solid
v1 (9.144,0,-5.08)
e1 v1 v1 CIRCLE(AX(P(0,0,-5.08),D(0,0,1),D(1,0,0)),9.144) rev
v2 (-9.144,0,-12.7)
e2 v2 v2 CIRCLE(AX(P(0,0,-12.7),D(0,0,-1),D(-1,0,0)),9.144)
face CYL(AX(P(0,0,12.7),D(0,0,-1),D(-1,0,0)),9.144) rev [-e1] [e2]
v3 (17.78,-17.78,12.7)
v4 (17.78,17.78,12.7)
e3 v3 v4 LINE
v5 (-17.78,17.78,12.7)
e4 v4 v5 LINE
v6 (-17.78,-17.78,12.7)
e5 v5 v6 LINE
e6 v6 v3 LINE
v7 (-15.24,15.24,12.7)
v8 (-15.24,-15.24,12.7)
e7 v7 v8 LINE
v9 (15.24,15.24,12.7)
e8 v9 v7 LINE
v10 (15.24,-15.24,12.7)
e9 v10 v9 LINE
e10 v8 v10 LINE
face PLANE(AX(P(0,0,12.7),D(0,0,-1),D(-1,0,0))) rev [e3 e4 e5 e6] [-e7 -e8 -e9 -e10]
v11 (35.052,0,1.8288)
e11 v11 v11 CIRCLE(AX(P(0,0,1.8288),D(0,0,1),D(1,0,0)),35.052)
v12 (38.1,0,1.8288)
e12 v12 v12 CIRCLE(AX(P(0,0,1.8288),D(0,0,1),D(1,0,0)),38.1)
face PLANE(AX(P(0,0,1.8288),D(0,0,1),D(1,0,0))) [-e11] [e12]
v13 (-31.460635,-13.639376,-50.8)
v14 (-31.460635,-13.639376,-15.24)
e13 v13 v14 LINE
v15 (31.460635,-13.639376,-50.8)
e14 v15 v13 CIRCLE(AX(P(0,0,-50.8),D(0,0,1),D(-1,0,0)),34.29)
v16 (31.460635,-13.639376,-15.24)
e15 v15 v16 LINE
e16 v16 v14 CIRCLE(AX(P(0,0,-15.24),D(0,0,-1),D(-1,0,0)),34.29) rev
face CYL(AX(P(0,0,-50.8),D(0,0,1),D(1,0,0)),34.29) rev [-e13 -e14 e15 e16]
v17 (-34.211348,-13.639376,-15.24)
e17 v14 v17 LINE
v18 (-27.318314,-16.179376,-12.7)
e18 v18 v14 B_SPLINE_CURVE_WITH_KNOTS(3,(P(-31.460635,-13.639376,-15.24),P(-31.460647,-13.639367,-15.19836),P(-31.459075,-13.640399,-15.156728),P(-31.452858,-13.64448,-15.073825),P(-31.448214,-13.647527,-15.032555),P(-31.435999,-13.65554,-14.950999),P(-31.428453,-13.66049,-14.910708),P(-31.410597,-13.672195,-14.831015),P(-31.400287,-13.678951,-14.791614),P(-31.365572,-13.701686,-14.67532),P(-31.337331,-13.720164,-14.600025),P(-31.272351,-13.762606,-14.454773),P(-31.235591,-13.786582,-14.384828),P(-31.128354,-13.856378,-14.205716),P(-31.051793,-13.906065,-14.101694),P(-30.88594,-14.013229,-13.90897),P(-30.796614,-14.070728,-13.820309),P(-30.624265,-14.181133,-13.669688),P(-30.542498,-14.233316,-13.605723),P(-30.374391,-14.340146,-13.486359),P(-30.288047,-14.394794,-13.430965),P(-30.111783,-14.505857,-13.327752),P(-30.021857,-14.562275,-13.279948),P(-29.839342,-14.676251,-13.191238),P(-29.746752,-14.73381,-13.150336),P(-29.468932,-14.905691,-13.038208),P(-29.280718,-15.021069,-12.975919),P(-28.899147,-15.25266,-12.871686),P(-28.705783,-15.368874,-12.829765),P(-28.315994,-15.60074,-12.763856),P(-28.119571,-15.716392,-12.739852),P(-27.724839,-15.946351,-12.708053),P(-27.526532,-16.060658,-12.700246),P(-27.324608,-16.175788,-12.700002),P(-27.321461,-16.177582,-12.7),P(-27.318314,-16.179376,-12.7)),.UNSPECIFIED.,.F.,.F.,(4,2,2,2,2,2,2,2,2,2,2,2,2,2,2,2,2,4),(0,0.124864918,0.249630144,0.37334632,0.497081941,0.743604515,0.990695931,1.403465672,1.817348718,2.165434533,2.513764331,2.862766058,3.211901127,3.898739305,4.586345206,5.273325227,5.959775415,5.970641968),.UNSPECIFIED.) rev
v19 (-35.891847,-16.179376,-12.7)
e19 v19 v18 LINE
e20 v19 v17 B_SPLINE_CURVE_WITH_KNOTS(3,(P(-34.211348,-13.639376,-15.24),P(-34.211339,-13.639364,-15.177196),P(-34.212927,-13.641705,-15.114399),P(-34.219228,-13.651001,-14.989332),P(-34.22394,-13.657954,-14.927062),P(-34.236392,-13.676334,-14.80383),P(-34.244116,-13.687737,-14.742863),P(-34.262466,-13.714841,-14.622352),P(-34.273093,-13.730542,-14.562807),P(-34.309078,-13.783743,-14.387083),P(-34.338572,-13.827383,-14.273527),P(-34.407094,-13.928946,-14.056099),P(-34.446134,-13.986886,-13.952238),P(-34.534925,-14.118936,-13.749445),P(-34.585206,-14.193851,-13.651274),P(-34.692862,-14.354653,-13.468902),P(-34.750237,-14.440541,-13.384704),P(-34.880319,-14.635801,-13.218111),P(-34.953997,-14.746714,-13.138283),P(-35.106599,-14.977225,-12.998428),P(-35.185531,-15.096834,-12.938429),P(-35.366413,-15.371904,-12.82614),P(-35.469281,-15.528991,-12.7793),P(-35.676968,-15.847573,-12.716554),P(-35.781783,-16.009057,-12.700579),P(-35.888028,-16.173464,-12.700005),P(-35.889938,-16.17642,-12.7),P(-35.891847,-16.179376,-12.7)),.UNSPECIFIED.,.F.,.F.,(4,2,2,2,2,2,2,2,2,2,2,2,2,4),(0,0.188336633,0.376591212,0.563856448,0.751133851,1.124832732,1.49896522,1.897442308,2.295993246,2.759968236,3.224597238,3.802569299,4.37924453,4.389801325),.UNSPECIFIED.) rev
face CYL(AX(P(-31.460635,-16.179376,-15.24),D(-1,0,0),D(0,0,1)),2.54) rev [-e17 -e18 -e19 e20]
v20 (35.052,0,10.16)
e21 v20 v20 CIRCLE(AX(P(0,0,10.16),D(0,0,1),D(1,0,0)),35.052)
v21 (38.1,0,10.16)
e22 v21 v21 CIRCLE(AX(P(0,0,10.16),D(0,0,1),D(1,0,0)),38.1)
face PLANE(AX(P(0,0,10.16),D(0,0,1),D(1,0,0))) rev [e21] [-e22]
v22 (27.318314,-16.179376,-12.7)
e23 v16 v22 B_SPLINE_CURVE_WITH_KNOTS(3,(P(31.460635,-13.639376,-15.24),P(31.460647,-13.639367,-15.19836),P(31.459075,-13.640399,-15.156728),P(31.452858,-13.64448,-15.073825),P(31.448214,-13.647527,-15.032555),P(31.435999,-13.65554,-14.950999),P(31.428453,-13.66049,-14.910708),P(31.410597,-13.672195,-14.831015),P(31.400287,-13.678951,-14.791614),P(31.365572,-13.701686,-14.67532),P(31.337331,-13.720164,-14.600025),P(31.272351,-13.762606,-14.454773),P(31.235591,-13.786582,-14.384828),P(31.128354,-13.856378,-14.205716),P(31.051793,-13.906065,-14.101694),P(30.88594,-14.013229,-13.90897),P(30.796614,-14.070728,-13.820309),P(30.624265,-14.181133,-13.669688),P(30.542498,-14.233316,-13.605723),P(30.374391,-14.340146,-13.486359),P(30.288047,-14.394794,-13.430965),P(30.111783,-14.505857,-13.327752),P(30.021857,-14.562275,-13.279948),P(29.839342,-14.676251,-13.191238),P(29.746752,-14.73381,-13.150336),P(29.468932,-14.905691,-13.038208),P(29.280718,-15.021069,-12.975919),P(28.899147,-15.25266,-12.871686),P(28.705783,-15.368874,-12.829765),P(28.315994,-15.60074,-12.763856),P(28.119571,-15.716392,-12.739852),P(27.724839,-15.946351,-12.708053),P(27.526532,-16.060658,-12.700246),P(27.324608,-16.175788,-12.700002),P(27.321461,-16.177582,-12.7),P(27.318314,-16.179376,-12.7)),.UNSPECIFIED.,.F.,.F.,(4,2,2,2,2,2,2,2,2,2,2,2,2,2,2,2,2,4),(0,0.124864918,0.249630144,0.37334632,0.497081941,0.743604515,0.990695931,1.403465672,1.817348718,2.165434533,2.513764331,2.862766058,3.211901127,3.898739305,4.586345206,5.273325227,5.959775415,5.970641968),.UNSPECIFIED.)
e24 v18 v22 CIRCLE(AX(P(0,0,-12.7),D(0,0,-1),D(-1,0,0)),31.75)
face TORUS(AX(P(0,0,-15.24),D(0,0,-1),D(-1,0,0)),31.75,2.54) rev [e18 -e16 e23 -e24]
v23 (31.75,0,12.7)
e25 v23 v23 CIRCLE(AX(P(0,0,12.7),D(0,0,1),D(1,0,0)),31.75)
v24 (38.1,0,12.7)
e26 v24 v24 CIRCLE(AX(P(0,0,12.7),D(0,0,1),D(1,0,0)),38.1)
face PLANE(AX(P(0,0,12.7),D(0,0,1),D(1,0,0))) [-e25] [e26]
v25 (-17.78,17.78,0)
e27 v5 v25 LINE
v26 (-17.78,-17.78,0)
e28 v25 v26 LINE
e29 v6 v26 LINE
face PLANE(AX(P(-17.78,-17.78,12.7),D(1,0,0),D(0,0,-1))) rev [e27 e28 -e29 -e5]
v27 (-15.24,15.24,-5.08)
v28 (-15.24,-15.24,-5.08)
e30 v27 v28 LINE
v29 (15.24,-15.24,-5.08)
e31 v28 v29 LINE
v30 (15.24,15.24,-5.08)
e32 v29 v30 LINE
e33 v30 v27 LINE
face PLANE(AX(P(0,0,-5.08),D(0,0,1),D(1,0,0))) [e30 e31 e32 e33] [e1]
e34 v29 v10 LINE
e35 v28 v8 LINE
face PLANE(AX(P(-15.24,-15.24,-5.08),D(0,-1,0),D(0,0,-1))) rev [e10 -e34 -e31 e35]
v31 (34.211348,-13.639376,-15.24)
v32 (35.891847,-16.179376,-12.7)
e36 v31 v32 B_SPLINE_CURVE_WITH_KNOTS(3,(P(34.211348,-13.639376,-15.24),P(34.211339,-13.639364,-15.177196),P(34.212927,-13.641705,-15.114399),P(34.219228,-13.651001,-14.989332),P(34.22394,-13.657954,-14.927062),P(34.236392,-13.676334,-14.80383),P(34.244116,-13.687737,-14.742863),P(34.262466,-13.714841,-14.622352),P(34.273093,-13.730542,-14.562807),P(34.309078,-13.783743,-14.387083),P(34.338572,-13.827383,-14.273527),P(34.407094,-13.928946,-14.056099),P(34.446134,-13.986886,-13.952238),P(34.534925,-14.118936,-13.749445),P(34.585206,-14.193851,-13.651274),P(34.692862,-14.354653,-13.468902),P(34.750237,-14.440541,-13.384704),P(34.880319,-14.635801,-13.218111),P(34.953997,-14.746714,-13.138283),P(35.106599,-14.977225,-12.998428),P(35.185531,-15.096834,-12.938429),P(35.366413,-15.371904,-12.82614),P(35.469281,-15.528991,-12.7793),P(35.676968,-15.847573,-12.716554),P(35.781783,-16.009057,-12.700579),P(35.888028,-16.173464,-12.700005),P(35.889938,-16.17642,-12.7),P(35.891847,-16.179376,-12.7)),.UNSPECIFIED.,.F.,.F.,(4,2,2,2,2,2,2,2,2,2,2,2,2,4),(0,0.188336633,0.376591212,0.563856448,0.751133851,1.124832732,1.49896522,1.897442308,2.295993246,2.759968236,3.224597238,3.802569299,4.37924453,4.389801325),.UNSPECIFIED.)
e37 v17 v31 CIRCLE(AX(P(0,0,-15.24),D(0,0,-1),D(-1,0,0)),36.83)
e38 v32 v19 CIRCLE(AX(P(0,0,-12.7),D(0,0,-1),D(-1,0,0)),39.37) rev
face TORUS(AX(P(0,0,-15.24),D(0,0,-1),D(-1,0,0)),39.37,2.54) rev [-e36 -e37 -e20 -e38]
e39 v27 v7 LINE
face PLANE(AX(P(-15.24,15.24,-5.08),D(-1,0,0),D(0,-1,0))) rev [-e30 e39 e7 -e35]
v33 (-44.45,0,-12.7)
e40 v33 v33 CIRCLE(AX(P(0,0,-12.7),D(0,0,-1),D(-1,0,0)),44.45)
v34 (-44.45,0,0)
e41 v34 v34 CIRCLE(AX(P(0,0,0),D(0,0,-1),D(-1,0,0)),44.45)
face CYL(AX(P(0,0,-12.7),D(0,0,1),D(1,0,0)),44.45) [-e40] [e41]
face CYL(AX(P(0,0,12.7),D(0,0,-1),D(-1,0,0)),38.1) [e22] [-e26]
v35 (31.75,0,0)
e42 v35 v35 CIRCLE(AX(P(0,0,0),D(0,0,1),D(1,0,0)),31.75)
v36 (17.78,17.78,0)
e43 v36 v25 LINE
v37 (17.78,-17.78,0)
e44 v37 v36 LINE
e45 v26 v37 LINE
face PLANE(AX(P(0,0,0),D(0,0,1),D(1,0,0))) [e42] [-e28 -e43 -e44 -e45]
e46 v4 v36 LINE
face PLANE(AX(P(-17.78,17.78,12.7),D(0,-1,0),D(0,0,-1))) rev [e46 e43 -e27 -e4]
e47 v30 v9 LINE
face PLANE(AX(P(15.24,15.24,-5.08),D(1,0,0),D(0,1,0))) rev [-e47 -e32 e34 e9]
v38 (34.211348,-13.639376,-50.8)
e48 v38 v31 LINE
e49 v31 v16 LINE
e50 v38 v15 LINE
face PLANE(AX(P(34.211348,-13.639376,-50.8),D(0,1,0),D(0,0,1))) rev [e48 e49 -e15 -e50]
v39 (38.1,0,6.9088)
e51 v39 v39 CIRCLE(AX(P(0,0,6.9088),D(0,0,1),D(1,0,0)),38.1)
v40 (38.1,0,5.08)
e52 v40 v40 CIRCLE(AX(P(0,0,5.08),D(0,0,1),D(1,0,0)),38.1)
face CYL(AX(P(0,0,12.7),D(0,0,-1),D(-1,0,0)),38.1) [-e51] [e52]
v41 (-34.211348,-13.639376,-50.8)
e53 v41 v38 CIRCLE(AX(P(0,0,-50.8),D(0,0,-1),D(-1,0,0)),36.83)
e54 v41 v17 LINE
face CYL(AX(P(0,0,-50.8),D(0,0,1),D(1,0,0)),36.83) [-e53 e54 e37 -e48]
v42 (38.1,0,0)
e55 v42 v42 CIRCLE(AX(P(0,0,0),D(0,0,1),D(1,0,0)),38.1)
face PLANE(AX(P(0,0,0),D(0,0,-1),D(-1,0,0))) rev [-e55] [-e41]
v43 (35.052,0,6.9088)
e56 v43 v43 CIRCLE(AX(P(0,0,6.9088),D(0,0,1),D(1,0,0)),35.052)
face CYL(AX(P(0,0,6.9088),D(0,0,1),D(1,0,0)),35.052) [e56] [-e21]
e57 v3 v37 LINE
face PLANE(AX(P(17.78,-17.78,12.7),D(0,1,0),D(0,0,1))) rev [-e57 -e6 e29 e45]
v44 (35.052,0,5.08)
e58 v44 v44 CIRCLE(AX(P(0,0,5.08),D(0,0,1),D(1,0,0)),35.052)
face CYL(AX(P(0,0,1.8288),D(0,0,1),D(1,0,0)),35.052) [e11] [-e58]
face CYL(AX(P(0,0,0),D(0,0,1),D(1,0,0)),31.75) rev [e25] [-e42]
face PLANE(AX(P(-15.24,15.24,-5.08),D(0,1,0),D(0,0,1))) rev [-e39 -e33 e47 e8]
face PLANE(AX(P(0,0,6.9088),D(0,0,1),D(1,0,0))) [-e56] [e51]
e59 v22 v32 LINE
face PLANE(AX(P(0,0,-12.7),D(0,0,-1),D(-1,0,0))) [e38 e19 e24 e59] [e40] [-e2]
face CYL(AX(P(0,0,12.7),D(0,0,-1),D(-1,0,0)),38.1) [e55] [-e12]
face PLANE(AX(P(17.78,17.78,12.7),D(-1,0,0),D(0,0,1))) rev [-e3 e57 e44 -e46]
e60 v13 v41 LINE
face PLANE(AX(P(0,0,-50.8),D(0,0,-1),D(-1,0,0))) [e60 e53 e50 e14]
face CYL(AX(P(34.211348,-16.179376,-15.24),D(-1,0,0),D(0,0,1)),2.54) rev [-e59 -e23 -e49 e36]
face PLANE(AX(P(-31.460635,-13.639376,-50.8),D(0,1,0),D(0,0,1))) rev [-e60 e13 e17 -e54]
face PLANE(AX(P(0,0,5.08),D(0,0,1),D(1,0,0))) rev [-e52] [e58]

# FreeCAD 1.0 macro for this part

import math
import FreeCAD as App
import Part
import Sketcher

V = App.Vector
Q = App.Units.Quantity


def edges_at(feature, points):
    """Names of the edges that pass closest to the given points."""
    edges = feature.Shape.Edges
    near = lambda p: min(range(len(edges)), key=lambda i: edges[i].distToShape(Part.Vertex(*p))[0])
    return sorted({f"Edge{near(p) + 1}" for p in points})


def add_polygon(sketch, points):
    """Adds a closed chain of lines whose ends are joined by coincident constraints."""
    first, n = sketch.GeometryCount, len(points)
    for a, b in zip(points, points[1:] + points[:1]):
        sketch.addGeometry(Part.LineSegment(App.Vector(*a, 0), App.Vector(*b, 0)), False)
    for i in range(n):
        sketch.addConstraint(Sketcher.Constraint("Coincident", first + i, 2, first + (i + 1) % n, 1))

doc = App.newDocument("Part")
body = doc.addObject("PartDesign::Body", "Body")

sketch1 = body.newObject("Sketcher::SketchObject", "Sketch")
sketch1.AttachmentSupport = (doc.getObject("XY_Plane"), [""])
sketch1.MapMode = "FlatFace"
sketch1.addGeometry(Part.Circle(V(0, 0, 0), V(0, 0, 1), 38), False)
sketch1.addConstraint([
    Sketcher.Constraint("Coincident", 0, 3, -1, 1),
    Sketcher.Constraint("Diameter", 0, Q("3 in")),
])
pad1 = body.newObject("PartDesign::Pad", "Pad")
pad1.Profile = sketch1
pad1.Length = Q("0.5 in")

sketch2 = body.newObject("Sketcher::SketchObject", "Sketch001")
sketch2.AttachmentSupport = (doc.getObject("XY_Plane"), [""])
sketch2.MapMode = "FlatFace"
sketch2.addGeometry(Part.Circle(V(0, 0, 0), V(0, 0, 1), 44), False)
sketch2.addConstraint([
    Sketcher.Constraint("Coincident", 0, 3, -1, 1),
    Sketcher.Constraint("Diameter", 0, Q("3.5 in")),
])
pad2 = body.newObject("PartDesign::Pad", "Pad001")
pad2.Profile = sketch2
pad2.Length = Q("0.5 in")
pad2.Reversed = True

sketch3 = body.newObject("Sketcher::SketchObject", "Sketch002")
sketch3.AttachmentSupport = (doc.getObject("XY_Plane"), [""])
sketch3.MapMode = "FlatFace"
sketch3.AttachmentOffset = App.Placement(V(0, 0, -0.5 * 25.4), App.Rotation())
sketch3.addGeometry(Part.Circle(V(0, 0, 0), V(0, 0, 1), 9), False)
sketch3.addConstraint([
    Sketcher.Constraint("Coincident", 0, 3, -1, 1),
    Sketcher.Constraint("Diameter", 0, Q("0.72 in")),
])
pocket1 = body.newObject("PartDesign::Pocket", "Pocket")
pocket1.Profile = sketch3
pocket1.Type = "ThroughAll"
pocket1.Reversed = True

sketch4 = body.newObject("Sketcher::SketchObject", "Sketch003")
sketch4.AttachmentSupport = (doc.getObject("XY_Plane"), [""])
sketch4.MapMode = "FlatFace"
sketch4.AttachmentOffset = App.Placement(V(0, 0, 0.5 * 25.4), App.Rotation())
add_polygon(sketch4, [(-15, 15), (-15, -15), (15, -15), (15, 15)])
sketch4.addConstraint([
    Sketcher.Constraint("Vertical", 0),
    Sketcher.Constraint("Horizontal", 1),
    Sketcher.Constraint("Vertical", 2),
    Sketcher.Constraint("Horizontal", 3),
    Sketcher.Constraint("Symmetric", 0, 2, 2, 2, -1, 1),
    Sketcher.Constraint("Equal", 3, 0),
    Sketcher.Constraint("DistanceX", 1, 1, 1, 2, Q("1.2 in")),
])
pocket2 = body.newObject("PartDesign::Pocket", "Pocket001")
pocket2.Profile = sketch4
pocket2.Length = Q("0.7 in")

sketch5 = body.newObject("Sketcher::SketchObject", "Sketch004")
sketch5.AttachmentSupport = (doc.getObject("XY_Plane"), [""])
sketch5.MapMode = "FlatFace"
sketch5.AttachmentOffset = App.Placement(V(0, 0, 0.5 * 25.4), App.Rotation())
sketch5.addGeometry(Part.Circle(V(0, 0, 0), V(0, 0, 1), 32), False)
sketch5.addConstraint([
    Sketcher.Constraint("Coincident", 0, 3, -1, 1),
    Sketcher.Constraint("Diameter", 0, Q("2.5 in")),
])
pocket3 = body.newObject("PartDesign::Pocket", "Pocket002")
pocket3.Profile = sketch5
pocket3.Length = Q("0.5 in")

sketch6 = body.newObject("Sketcher::SketchObject", "Sketch005")
sketch6.AttachmentSupport = (doc.getObject("XY_Plane"), [""])
sketch6.MapMode = "FlatFace"
sketch6.AttachmentOffset = App.Placement(V(0, 0, -0.5 * 25.4), App.Rotation())
sketch6.addGeometry([
    Part.LineSegment(V(34.2, -13.6, 0), V(31.5, -13.6, 0)),
    Part.ArcOfCircle(Part.Circle(V(0, 0, 0), V(0, 0, 1), 34.3), math.radians(-23), math.radians(203)),
    Part.LineSegment(V(-31.5, -13.6, 0), V(-34.2, -13.6, 0)),
    Part.ArcOfCircle(Part.Circle(V(0, 0, 0), V(0, 0, 1), 36.8), math.radians(-22), math.radians(202)),
], False)
sketch6.addConstraint([
    Sketcher.Constraint("Coincident", 0, 2, 1, 1),
    Sketcher.Constraint("Coincident", 1, 2, 2, 1),
    Sketcher.Constraint("Coincident", 2, 2, 3, 2),
    Sketcher.Constraint("Coincident", 3, 1, 0, 1),
    Sketcher.Constraint("Horizontal", 0),
    Sketcher.Constraint("Horizontal", 2),
    Sketcher.Constraint("Coincident", 1, 3, -1, 1),
    Sketcher.Constraint("Coincident", 3, 3, -1, 1),
    Sketcher.Constraint("Horizontal", 0, 2, 1, 2),
    Sketcher.Constraint("Radius", 1, Q("1.35 in")),
    Sketcher.Constraint("Radius", 3, Q("1.45 in")),
    Sketcher.Constraint("DistanceX", 0, 2, 0, 1, 2.750713),
])
pad3 = body.newObject("PartDesign::Pad", "Pad002")
pad3.Profile = sketch6
pad3.Length = Q("1.5 in")
pad3.Reversed = True

sketch7 = body.newObject("Sketcher::SketchObject", "Sketch006")
sketch7.AttachmentSupport = (doc.getObject("XY_Plane"), [""])
sketch7.MapMode = "FlatFace"
sketch7.AttachmentOffset = App.Placement(V(0, 0, 0.4 * 25.4), App.Rotation())
sketch7.addGeometry([
    Part.Circle(V(0, 0, 0), V(0, 0, 1), 38),
    Part.Circle(V(0, 0, 0), V(0, 0, 1), 35),
], False)
sketch7.addConstraint([
    Sketcher.Constraint("Coincident", 0, 3, -1, 1),
    Sketcher.Constraint("Coincident", 1, 3, -1, 1),
    Sketcher.Constraint("Diameter", 0, Q("3 in")),
    Sketcher.Constraint("Diameter", 1, Q("2.76 in")),
])
pocket4 = body.newObject("PartDesign::Pocket", "Pocket003")
pocket4.Profile = sketch7
pocket4.Length = Q("0.128 in")

sketch8 = body.newObject("Sketcher::SketchObject", "Sketch007")
sketch8.AttachmentSupport = (doc.getObject("XY_Plane"), [""])
sketch8.MapMode = "FlatFace"
sketch8.AttachmentOffset = App.Placement(V(0, 0, 0.2 * 25.4), App.Rotation())
sketch8.addGeometry([
    Part.Circle(V(0, 0, 0), V(0, 0, 1), 38),
    Part.Circle(V(0, 0, 0), V(0, 0, 1), 35),
], False)
sketch8.addConstraint([
    Sketcher.Constraint("Coincident", 0, 3, -1, 1),
    Sketcher.Constraint("Coincident", 1, 3, -1, 1),
    Sketcher.Constraint("Diameter", 0, Q("3 in")),
    Sketcher.Constraint("Diameter", 1, Q("2.76 in")),
])
pocket5 = body.newObject("PartDesign::Pocket", "Pocket004")
pocket5.Profile = sketch8
pocket5.Length = Q("0.128 in")
doc.recompute()

fillet = body.newObject("PartDesign::Fillet", "Fillet")
fillet.Base = (pocket5, edges_at(pocket5, [
    (0, 36.83, -12.7),
    (32.836, -13.639, -12.7),
    (0, 34.29, -12.7),
    (-32.836, -13.639, -12.7),
]))
fillet.Radius = Q("0.1 in")

sketch9 = body.newObject("Sketcher::SketchObject", "Sketch008")
sketch9.AttachmentSupport = (doc.getObject("XY_Plane"), [""])
sketch9.MapMode = "FlatFace"
add_polygon(sketch9, [(-18, 18), (-18, -18), (18, -18), (18, 18)])
add_polygon(sketch9, [(15, -15), (-15, -15), (-15, 15), (15, 15)])
sketch9.addConstraint([
    Sketcher.Constraint("Vertical", 0),
    Sketcher.Constraint("Horizontal", 1),
    Sketcher.Constraint("Vertical", 2),
    Sketcher.Constraint("Horizontal", 3),
    Sketcher.Constraint("Horizontal", 4),
    Sketcher.Constraint("Vertical", 5),
    Sketcher.Constraint("Horizontal", 6),
    Sketcher.Constraint("Vertical", 7),
    Sketcher.Constraint("Symmetric", 0, 2, 2, 2, -1, 1),
    Sketcher.Constraint("Symmetric", 4, 2, 6, 2, -1, 1),
    Sketcher.Constraint("Equal", 3, 0),
    Sketcher.Constraint("Equal", 6, 5),
    Sketcher.Constraint("DistanceX", 1, 1, 1, 2, Q("1.4 in")),
    Sketcher.Constraint("DistanceX", 4, 2, 4, 1, Q("1.2 in")),
])
pad4 = body.newObject("PartDesign::Pad", "Pad003")
pad4.Profile = sketch9
pad4.Length = Q("0.5 in")

doc.recompute()
